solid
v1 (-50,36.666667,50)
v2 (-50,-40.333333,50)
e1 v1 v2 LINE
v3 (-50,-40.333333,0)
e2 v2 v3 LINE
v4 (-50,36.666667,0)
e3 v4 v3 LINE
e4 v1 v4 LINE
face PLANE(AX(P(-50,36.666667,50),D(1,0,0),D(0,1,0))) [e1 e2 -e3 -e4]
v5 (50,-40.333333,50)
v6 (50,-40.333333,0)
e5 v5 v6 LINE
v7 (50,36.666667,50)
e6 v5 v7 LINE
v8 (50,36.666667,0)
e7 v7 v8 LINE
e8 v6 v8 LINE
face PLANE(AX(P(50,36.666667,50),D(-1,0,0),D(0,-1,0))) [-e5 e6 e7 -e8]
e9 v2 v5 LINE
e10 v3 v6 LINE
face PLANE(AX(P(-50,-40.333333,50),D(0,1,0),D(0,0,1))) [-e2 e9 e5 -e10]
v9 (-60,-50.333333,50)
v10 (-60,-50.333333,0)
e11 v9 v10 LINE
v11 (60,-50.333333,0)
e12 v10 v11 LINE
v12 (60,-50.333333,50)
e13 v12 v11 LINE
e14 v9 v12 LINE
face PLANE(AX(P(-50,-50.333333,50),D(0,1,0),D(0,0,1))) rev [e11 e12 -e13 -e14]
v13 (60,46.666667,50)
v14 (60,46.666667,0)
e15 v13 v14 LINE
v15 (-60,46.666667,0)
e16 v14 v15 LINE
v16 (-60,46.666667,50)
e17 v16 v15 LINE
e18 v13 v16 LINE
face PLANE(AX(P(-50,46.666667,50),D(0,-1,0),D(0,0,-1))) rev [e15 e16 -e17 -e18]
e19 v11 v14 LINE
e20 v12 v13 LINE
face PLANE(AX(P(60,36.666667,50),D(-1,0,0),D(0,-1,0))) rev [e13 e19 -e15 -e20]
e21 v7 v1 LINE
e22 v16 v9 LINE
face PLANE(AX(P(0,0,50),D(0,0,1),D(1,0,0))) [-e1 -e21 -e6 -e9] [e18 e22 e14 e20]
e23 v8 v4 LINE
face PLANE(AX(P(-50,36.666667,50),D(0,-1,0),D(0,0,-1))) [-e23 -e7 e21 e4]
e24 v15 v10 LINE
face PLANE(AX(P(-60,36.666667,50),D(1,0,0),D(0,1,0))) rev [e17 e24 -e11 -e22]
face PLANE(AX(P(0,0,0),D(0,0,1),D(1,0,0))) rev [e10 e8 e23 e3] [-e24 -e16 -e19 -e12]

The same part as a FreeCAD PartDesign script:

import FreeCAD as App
import Part
import Sketcher

doc = App.newDocument("Part")
params = doc.addObject("Spreadsheet::Sheet", "Params")
for row, (alias, value) in enumerate([
    ("sketch1_width", "120 mm"),
    ("sketch1_width2", "100 mm"),
    ("sketch1_height", "97 mm"),
    ("sketch1_height2", "77 mm"),
    ("pad1_length", "50 mm"),
], start=1):
    params.set(f"A{row}", alias)
    params.set(f"B{row}", "=" + value)
    params.setAlias(f"B{row}", alias)

body = doc.addObject("PartDesign::Body", "Body")

# Sketch on XY plane
sketch1 = doc.addObject("Sketcher::SketchObject", "Sketch")
body.addObject(sketch1)
sketch1.AttachmentSupport = (doc.XY_Plane, [""])
sketch1.MapMode = "FlatFace"
sketch1.addGeometry([
    Part.LineSegment(App.Vector(-60, 47, 0), App.Vector(-60, -50, 0)),  # 0
    Part.LineSegment(App.Vector(-60, -50, 0), App.Vector(60, -50, 0)),  # 1
    Part.LineSegment(App.Vector(60, -50, 0), App.Vector(60, 47, 0)),  # 2
    Part.LineSegment(App.Vector(60, 47, 0), App.Vector(-60, 47, 0)),  # 3
    Part.LineSegment(App.Vector(50, -40, 0), App.Vector(-50, -40, 0)),  # 4
    Part.LineSegment(App.Vector(-50, -40, 0), App.Vector(-50, 37, 0)),  # 5
    Part.LineSegment(App.Vector(-50, 37, 0), App.Vector(50, 37, 0)),  # 6
    Part.LineSegment(App.Vector(50, 37, 0), App.Vector(50, -40, 0)),  # 7
], False)
sketch1.addConstraint([
    Sketcher.Constraint("Coincident", 0, 2, 1, 1),
    Sketcher.Constraint("Coincident", 1, 2, 2, 1),
    Sketcher.Constraint("Coincident", 2, 2, 3, 1),
    Sketcher.Constraint("Coincident", 3, 2, 0, 1),
    Sketcher.Constraint("Coincident", 4, 2, 5, 1),
    Sketcher.Constraint("Coincident", 5, 2, 6, 1),
    Sketcher.Constraint("Coincident", 6, 2, 7, 1),
    Sketcher.Constraint("Coincident", 7, 2, 4, 1),
    Sketcher.Constraint("Vertical", 0),
    Sketcher.Constraint("Horizontal", 1),
    Sketcher.Constraint("Vertical", 2),
    Sketcher.Constraint("Horizontal", 3),
    Sketcher.Constraint("Horizontal", 4),
    Sketcher.Constraint("Vertical", 5),
    Sketcher.Constraint("Horizontal", 6),
    Sketcher.Constraint("Vertical", 7),
    Sketcher.Constraint("DistanceX", 1, 1, 1, 2, 120.0),
    Sketcher.Constraint("DistanceX", 4, 2, 4, 1, 100.0),
    Sketcher.Constraint("DistanceY", 0, 2, 0, 1, 97.0),
    Sketcher.Constraint("DistanceY", 5, 1, 5, 2, 77.0),
    Sketcher.Constraint("DistanceX", 0, 2, -1, 1, 60.0),
    Sketcher.Constraint("DistanceX", 4, 2, -1, 1, 50.0),
    Sketcher.Constraint("DistanceY", 0, 2, 4, 2, 10.0),
    Sketcher.Constraint("DistanceY", 0, 2, -1, 1, 50.333333),
])
sketch1.setExpression("Constraints[16]", "Params.sketch1_width")
sketch1.setExpression("Constraints[17]", "Params.sketch1_width2")
sketch1.setExpression("Constraints[18]", "Params.sketch1_height")
sketch1.setExpression("Constraints[19]", "Params.sketch1_height2")
pad1 = doc.addObject("PartDesign::Pad", "Pad")
body.addObject(pad1)
pad1.Profile = sketch1
pad1.setExpression("Length", "Params.pad1_length")

doc.recompute()
